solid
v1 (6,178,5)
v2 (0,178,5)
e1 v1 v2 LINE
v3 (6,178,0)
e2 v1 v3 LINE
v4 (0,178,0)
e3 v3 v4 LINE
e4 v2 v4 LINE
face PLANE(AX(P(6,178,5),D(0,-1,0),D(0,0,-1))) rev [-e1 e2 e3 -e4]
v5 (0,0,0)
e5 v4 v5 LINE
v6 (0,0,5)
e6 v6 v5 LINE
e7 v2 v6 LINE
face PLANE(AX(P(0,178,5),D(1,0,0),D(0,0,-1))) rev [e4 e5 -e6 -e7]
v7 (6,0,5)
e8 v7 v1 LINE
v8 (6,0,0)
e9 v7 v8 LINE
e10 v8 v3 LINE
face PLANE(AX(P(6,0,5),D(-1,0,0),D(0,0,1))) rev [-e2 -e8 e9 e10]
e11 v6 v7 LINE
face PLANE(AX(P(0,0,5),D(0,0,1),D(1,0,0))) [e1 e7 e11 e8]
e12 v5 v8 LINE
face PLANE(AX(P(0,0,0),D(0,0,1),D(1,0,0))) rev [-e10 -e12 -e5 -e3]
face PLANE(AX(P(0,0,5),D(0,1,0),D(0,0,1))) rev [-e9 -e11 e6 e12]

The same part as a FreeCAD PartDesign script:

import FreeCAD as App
import Part
import Sketcher
from FreeCAD import Vector
Q = App.Units.Quantity

doc = App.newDocument("Part")
body = doc.addObject("PartDesign::Body", "Body")

# Sketch on XY plane
sketch1 = body.newObject("Sketcher::SketchObject", "Sketch")
sketch1.AttachmentSupport = (doc.getObject("XY_Plane"), [""])
sketch1.MapMode = "FlatFace"
sketch1.addGeometry(Part.LineSegment(Vector(0, 178, 0), Vector(0, 0, 0)), False)
sketch1.addGeometry(Part.LineSegment(Vector(0, 0, 0), Vector(6, 0, 0)), False)
sketch1.addGeometry(Part.LineSegment(Vector(6, 0, 0), Vector(6, 178, 0)), False)
sketch1.addGeometry(Part.LineSegment(Vector(6, 178, 0), Vector(0, 178, 0)), False)
sketch1.addConstraint(Sketcher.Constraint("Coincident", 0, 2, 1, 1))
sketch1.addConstraint(Sketcher.Constraint("Coincident", 1, 2, 2, 1))
sketch1.addConstraint(Sketcher.Constraint("Coincident", 2, 2, 3, 1))
sketch1.addConstraint(Sketcher.Constraint("Coincident", 3, 2, 0, 1))
sketch1.addConstraint(Sketcher.Constraint("Vertical", 0))
sketch1.addConstraint(Sketcher.Constraint("Horizontal", 1))
sketch1.addConstraint(Sketcher.Constraint("Vertical", 2))
sketch1.addConstraint(Sketcher.Constraint("Horizontal", 3))
sketch1.addConstraint(Sketcher.Constraint("Coincident", 0, 2, -1, 1))
sketch1.addConstraint(Sketcher.Constraint("DistanceX", 1, 1, 1, 2, Q("6 mm")))
sketch1.addConstraint(Sketcher.Constraint("DistanceY", 0, 2, 0, 1, Q("178 mm")))
pad1 = body.newObject("PartDesign::Pad", "Pad")
pad1.Profile = sketch1
pad1.Length = 5

doc.recompute()
